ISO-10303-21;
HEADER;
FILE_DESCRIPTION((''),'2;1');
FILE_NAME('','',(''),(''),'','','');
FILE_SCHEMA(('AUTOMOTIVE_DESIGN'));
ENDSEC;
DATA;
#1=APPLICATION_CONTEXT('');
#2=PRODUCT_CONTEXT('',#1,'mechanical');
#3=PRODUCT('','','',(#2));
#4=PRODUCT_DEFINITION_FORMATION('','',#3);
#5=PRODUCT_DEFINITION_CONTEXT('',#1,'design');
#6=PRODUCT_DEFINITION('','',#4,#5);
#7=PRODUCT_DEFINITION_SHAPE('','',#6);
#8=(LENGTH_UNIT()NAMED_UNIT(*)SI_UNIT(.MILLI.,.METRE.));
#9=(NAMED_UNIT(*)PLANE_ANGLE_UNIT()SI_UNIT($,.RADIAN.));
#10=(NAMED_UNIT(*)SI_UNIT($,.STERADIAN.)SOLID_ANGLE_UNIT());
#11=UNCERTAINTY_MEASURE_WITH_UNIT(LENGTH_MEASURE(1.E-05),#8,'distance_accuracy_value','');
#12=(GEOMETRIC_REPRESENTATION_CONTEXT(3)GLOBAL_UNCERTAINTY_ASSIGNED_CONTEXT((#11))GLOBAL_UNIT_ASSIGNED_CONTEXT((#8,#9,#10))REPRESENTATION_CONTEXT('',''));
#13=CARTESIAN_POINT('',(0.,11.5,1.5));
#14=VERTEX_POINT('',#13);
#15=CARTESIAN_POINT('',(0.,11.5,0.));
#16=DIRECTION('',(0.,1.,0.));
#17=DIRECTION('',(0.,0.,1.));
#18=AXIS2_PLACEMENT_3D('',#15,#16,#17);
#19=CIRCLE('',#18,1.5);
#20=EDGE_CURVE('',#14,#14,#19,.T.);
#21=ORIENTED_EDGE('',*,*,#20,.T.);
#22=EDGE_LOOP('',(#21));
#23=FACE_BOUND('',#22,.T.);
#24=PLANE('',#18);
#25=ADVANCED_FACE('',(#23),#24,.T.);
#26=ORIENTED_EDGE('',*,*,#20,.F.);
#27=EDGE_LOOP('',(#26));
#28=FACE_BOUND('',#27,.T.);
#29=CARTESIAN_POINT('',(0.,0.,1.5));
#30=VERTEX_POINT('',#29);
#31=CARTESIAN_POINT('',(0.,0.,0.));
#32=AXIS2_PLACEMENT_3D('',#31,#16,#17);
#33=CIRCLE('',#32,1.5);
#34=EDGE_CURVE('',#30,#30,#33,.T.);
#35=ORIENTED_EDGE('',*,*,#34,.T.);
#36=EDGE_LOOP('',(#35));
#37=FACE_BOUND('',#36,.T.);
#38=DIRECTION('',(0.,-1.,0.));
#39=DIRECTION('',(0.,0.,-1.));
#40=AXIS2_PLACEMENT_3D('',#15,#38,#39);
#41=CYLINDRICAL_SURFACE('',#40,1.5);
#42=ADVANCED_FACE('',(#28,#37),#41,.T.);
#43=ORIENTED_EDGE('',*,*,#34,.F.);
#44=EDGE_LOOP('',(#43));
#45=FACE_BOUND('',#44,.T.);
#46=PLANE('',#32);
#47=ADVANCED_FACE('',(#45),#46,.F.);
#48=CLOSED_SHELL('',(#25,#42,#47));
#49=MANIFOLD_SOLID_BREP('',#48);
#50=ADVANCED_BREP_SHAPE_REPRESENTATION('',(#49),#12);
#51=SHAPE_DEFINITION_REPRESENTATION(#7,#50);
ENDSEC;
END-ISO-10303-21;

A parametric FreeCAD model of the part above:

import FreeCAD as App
import Part
import Sketcher
from FreeCAD import Vector

doc = App.newDocument("Part")
body = doc.addObject("PartDesign::Body", "Body")

# Sketch on XZ plane
sketch1 = doc.addObject("Sketcher::SketchObject", "Sketch")
body.addObject(sketch1)
sketch1.AttachmentSupport = (doc.XZ_Plane, [""])
sketch1.MapMode = "FlatFace"
sketch1.addGeometry(Part.Circle(Vector(0, 0, 0), Vector(0, 0, 1), 1.5), False)
sketch1.addConstraint(Sketcher.Constraint("Coincident", 0, 3, -1, 1))
sketch1.addConstraint(Sketcher.Constraint("Diameter", 0, 3.0))
pad1 = doc.addObject("PartDesign::Pad", "Pad")
body.addObject(pad1)
pad1.Profile = sketch1
pad1.Length = 11.5
pad1.Reversed = True

doc.recompute()
